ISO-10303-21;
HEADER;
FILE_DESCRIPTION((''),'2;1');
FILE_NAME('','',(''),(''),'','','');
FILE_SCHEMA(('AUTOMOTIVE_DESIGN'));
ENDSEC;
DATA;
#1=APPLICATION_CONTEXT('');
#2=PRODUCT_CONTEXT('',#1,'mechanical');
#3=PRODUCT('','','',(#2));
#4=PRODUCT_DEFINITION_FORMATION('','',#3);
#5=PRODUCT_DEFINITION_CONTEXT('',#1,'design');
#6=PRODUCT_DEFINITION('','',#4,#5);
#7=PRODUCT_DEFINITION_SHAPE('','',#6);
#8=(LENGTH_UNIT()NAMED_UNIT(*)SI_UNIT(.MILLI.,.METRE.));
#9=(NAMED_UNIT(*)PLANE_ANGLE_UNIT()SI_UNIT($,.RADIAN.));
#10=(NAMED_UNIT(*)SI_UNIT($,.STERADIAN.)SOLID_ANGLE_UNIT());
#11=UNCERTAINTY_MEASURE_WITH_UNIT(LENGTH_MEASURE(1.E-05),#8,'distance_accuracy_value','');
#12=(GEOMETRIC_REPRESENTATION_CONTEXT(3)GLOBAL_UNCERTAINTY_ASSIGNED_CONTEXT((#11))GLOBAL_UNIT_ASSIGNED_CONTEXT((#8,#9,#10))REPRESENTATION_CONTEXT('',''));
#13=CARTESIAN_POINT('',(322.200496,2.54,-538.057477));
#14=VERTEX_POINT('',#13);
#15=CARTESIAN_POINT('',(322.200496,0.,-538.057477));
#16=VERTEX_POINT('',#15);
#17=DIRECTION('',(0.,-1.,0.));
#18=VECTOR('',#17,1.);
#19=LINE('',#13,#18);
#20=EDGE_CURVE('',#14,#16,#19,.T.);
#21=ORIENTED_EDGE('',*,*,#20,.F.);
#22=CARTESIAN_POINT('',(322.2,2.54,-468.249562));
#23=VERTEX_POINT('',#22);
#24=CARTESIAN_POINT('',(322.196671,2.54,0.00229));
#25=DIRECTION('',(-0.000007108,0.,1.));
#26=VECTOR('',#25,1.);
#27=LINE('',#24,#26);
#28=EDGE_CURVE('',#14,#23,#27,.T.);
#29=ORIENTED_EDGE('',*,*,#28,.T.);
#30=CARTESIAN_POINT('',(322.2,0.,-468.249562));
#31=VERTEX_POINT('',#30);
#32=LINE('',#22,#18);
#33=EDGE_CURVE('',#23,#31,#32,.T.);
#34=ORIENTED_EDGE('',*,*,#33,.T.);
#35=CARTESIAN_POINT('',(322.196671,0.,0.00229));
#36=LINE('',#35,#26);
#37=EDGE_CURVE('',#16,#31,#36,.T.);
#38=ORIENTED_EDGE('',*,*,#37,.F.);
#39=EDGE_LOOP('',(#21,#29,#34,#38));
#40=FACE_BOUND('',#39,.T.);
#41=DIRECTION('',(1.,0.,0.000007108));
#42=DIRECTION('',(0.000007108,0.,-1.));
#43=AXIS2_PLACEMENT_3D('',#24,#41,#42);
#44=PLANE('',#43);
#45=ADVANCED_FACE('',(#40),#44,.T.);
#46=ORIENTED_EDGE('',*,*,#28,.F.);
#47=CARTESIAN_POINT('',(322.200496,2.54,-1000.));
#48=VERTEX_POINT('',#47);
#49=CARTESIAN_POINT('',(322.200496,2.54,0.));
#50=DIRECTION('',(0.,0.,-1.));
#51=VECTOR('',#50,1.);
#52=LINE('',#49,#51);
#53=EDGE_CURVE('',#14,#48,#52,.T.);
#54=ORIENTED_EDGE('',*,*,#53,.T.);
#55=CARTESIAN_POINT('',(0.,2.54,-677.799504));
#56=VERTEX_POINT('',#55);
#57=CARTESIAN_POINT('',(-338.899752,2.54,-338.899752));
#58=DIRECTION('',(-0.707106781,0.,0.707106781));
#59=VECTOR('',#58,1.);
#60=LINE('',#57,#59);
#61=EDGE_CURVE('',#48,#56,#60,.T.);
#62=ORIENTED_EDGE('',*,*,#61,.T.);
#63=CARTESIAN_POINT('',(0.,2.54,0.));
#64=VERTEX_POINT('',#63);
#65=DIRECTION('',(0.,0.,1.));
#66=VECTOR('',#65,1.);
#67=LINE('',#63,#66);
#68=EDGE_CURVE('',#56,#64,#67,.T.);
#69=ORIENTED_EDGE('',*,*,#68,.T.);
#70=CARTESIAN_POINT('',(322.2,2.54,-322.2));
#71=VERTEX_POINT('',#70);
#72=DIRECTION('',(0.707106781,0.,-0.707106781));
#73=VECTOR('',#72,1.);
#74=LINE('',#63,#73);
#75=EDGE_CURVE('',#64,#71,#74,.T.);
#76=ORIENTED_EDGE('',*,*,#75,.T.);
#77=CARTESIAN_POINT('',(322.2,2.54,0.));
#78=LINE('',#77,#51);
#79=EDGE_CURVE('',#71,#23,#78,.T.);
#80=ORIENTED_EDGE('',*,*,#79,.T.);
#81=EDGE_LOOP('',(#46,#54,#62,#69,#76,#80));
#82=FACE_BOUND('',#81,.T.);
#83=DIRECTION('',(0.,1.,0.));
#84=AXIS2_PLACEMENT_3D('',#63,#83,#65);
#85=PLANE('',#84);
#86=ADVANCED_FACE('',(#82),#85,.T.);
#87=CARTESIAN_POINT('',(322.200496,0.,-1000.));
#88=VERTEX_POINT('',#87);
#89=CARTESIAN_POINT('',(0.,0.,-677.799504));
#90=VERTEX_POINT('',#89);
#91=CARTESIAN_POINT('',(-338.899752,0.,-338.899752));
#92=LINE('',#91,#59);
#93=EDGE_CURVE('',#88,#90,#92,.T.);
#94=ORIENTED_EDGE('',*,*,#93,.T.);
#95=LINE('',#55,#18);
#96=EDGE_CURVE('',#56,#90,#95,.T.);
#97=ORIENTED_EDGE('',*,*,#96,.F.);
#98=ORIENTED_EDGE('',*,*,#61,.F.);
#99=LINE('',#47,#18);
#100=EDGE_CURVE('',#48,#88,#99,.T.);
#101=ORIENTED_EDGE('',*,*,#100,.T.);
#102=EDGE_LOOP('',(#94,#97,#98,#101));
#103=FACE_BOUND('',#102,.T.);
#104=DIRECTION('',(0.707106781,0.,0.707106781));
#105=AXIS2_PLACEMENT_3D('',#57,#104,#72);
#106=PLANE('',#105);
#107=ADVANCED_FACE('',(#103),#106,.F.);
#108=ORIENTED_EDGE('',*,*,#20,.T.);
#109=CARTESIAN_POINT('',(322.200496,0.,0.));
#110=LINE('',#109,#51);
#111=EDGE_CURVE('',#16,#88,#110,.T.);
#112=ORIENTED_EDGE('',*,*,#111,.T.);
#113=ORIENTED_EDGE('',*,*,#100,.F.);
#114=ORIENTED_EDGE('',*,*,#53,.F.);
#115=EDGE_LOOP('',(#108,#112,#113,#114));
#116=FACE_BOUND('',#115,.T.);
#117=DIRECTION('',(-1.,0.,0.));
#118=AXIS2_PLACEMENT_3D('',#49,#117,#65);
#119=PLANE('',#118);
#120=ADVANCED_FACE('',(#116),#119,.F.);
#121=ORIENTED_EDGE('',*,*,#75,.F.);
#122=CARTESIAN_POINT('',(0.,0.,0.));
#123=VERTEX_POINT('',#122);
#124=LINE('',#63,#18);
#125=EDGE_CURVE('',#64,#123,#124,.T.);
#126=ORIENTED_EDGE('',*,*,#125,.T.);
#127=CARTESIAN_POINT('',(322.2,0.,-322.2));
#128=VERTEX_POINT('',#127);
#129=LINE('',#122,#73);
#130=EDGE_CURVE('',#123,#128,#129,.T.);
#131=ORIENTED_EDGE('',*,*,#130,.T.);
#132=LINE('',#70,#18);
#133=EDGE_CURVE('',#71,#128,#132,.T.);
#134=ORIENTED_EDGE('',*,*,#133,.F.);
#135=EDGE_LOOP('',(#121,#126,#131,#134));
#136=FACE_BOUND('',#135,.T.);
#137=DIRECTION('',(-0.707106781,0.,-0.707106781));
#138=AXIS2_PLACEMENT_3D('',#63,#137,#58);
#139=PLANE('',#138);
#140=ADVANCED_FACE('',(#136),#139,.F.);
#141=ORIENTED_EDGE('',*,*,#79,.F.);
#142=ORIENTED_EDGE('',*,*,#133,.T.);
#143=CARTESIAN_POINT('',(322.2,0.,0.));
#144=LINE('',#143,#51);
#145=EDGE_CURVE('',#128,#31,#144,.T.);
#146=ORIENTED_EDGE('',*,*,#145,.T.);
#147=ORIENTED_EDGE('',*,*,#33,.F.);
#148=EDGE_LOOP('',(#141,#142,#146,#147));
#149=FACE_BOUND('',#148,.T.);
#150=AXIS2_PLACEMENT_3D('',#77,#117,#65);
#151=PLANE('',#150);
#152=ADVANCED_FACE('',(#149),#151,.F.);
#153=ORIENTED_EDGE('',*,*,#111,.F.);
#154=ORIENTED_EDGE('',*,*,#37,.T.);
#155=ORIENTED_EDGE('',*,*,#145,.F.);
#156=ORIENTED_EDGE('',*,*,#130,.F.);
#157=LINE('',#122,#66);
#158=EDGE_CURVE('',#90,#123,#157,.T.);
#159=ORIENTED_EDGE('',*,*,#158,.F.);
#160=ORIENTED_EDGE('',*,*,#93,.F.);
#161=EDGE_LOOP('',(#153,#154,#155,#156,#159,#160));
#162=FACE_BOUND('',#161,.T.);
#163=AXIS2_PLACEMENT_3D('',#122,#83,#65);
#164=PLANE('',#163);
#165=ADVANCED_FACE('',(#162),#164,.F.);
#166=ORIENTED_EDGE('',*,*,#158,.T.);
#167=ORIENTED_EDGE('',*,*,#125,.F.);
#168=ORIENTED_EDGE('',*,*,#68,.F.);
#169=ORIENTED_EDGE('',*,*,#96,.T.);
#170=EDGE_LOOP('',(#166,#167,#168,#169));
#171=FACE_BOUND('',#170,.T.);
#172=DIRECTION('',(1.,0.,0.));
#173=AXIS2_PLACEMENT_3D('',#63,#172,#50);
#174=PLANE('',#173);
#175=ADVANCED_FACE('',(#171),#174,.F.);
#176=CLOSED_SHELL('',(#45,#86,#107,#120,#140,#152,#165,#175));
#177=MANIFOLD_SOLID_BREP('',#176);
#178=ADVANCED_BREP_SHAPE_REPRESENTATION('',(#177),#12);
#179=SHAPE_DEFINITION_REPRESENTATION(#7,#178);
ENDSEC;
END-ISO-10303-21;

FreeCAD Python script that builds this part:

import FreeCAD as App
import Part
import Sketcher
Q = App.Units.Quantity

doc = App.newDocument("Part")
body = doc.addObject("PartDesign::Body", "Body")

sketch1 = body.newObject("Sketcher::SketchObject", "Sketch")
sketch1.AttachmentSupport = (doc.getObject("XZ_Plane"), [""])
sketch1.MapMode = "FlatFace"
sketch1.addGeometry(Part.LineSegment(App.Vector(322, -538, 0), App.Vector(322, -1000, 0)), False)
sketch1.addGeometry(Part.LineSegment(App.Vector(322, -1000, 0), App.Vector(0, -678, 0)), False)
sketch1.addGeometry(Part.LineSegment(App.Vector(0, -678, 0), App.Vector(0, 0, 0)), False)
sketch1.addGeometry(Part.LineSegment(App.Vector(0, 0, 0), App.Vector(322, -322, 0)), False)
sketch1.addGeometry(Part.LineSegment(App.Vector(322, -322, 0), App.Vector(322, -468, 0)), False)
sketch1.addGeometry(Part.LineSegment(App.Vector(322, -468, 0), App.Vector(322, -538, 0)), False)
sketch1.addConstraint(Sketcher.Constraint("Coincident", 0, 2, 1, 1))
sketch1.addConstraint(Sketcher.Constraint("Coincident", 1, 2, 2, 1))
sketch1.addConstraint(Sketcher.Constraint("Coincident", 2, 2, 3, 1))
sketch1.addConstraint(Sketcher.Constraint("Coincident", 3, 2, 4, 1))
sketch1.addConstraint(Sketcher.Constraint("Coincident", 4, 2, 5, 1))
sketch1.addConstraint(Sketcher.Constraint("Coincident", 5, 2, 0, 1))
sketch1.addConstraint(Sketcher.Constraint("Vertical", 0))
sketch1.addConstraint(Sketcher.Constraint("Vertical", 2))
sketch1.addConstraint(Sketcher.Constraint("Vertical", 4))
sketch1.addConstraint(Sketcher.Constraint("Coincident", 2, 2, -1, 1))
sketch1.addConstraint(Sketcher.Constraint("Parallel", 1, 3))
sketch1.addConstraint(Sketcher.Constraint("Angle", 1, Q("135 deg")))
sketch1.addConstraint(Sketcher.Constraint("DistanceY", 0, 2, -1, 1, Q("1000 mm")))
sketch1.addConstraint(Sketcher.Constraint("DistanceX", -1, 1, 3, 2, Q("322.2 mm")))
sketch1.addConstraint(Sketcher.Constraint("Distance", 1, Q("455.660312 mm")))
sketch1.addConstraint(Sketcher.Constraint("DistanceY", 0, 2, 0, 1, Q("461.942523 mm")))
sketch1.addConstraint(Sketcher.Constraint("DistanceY", 4, 2, 4, 1, Q("146.049562 mm")))
pad1 = body.newObject("PartDesign::Pad", "Pad")
pad1.Profile = sketch1
pad1.Length = Q("0.1 in")
pad1.Reversed = True

doc.recompute()
